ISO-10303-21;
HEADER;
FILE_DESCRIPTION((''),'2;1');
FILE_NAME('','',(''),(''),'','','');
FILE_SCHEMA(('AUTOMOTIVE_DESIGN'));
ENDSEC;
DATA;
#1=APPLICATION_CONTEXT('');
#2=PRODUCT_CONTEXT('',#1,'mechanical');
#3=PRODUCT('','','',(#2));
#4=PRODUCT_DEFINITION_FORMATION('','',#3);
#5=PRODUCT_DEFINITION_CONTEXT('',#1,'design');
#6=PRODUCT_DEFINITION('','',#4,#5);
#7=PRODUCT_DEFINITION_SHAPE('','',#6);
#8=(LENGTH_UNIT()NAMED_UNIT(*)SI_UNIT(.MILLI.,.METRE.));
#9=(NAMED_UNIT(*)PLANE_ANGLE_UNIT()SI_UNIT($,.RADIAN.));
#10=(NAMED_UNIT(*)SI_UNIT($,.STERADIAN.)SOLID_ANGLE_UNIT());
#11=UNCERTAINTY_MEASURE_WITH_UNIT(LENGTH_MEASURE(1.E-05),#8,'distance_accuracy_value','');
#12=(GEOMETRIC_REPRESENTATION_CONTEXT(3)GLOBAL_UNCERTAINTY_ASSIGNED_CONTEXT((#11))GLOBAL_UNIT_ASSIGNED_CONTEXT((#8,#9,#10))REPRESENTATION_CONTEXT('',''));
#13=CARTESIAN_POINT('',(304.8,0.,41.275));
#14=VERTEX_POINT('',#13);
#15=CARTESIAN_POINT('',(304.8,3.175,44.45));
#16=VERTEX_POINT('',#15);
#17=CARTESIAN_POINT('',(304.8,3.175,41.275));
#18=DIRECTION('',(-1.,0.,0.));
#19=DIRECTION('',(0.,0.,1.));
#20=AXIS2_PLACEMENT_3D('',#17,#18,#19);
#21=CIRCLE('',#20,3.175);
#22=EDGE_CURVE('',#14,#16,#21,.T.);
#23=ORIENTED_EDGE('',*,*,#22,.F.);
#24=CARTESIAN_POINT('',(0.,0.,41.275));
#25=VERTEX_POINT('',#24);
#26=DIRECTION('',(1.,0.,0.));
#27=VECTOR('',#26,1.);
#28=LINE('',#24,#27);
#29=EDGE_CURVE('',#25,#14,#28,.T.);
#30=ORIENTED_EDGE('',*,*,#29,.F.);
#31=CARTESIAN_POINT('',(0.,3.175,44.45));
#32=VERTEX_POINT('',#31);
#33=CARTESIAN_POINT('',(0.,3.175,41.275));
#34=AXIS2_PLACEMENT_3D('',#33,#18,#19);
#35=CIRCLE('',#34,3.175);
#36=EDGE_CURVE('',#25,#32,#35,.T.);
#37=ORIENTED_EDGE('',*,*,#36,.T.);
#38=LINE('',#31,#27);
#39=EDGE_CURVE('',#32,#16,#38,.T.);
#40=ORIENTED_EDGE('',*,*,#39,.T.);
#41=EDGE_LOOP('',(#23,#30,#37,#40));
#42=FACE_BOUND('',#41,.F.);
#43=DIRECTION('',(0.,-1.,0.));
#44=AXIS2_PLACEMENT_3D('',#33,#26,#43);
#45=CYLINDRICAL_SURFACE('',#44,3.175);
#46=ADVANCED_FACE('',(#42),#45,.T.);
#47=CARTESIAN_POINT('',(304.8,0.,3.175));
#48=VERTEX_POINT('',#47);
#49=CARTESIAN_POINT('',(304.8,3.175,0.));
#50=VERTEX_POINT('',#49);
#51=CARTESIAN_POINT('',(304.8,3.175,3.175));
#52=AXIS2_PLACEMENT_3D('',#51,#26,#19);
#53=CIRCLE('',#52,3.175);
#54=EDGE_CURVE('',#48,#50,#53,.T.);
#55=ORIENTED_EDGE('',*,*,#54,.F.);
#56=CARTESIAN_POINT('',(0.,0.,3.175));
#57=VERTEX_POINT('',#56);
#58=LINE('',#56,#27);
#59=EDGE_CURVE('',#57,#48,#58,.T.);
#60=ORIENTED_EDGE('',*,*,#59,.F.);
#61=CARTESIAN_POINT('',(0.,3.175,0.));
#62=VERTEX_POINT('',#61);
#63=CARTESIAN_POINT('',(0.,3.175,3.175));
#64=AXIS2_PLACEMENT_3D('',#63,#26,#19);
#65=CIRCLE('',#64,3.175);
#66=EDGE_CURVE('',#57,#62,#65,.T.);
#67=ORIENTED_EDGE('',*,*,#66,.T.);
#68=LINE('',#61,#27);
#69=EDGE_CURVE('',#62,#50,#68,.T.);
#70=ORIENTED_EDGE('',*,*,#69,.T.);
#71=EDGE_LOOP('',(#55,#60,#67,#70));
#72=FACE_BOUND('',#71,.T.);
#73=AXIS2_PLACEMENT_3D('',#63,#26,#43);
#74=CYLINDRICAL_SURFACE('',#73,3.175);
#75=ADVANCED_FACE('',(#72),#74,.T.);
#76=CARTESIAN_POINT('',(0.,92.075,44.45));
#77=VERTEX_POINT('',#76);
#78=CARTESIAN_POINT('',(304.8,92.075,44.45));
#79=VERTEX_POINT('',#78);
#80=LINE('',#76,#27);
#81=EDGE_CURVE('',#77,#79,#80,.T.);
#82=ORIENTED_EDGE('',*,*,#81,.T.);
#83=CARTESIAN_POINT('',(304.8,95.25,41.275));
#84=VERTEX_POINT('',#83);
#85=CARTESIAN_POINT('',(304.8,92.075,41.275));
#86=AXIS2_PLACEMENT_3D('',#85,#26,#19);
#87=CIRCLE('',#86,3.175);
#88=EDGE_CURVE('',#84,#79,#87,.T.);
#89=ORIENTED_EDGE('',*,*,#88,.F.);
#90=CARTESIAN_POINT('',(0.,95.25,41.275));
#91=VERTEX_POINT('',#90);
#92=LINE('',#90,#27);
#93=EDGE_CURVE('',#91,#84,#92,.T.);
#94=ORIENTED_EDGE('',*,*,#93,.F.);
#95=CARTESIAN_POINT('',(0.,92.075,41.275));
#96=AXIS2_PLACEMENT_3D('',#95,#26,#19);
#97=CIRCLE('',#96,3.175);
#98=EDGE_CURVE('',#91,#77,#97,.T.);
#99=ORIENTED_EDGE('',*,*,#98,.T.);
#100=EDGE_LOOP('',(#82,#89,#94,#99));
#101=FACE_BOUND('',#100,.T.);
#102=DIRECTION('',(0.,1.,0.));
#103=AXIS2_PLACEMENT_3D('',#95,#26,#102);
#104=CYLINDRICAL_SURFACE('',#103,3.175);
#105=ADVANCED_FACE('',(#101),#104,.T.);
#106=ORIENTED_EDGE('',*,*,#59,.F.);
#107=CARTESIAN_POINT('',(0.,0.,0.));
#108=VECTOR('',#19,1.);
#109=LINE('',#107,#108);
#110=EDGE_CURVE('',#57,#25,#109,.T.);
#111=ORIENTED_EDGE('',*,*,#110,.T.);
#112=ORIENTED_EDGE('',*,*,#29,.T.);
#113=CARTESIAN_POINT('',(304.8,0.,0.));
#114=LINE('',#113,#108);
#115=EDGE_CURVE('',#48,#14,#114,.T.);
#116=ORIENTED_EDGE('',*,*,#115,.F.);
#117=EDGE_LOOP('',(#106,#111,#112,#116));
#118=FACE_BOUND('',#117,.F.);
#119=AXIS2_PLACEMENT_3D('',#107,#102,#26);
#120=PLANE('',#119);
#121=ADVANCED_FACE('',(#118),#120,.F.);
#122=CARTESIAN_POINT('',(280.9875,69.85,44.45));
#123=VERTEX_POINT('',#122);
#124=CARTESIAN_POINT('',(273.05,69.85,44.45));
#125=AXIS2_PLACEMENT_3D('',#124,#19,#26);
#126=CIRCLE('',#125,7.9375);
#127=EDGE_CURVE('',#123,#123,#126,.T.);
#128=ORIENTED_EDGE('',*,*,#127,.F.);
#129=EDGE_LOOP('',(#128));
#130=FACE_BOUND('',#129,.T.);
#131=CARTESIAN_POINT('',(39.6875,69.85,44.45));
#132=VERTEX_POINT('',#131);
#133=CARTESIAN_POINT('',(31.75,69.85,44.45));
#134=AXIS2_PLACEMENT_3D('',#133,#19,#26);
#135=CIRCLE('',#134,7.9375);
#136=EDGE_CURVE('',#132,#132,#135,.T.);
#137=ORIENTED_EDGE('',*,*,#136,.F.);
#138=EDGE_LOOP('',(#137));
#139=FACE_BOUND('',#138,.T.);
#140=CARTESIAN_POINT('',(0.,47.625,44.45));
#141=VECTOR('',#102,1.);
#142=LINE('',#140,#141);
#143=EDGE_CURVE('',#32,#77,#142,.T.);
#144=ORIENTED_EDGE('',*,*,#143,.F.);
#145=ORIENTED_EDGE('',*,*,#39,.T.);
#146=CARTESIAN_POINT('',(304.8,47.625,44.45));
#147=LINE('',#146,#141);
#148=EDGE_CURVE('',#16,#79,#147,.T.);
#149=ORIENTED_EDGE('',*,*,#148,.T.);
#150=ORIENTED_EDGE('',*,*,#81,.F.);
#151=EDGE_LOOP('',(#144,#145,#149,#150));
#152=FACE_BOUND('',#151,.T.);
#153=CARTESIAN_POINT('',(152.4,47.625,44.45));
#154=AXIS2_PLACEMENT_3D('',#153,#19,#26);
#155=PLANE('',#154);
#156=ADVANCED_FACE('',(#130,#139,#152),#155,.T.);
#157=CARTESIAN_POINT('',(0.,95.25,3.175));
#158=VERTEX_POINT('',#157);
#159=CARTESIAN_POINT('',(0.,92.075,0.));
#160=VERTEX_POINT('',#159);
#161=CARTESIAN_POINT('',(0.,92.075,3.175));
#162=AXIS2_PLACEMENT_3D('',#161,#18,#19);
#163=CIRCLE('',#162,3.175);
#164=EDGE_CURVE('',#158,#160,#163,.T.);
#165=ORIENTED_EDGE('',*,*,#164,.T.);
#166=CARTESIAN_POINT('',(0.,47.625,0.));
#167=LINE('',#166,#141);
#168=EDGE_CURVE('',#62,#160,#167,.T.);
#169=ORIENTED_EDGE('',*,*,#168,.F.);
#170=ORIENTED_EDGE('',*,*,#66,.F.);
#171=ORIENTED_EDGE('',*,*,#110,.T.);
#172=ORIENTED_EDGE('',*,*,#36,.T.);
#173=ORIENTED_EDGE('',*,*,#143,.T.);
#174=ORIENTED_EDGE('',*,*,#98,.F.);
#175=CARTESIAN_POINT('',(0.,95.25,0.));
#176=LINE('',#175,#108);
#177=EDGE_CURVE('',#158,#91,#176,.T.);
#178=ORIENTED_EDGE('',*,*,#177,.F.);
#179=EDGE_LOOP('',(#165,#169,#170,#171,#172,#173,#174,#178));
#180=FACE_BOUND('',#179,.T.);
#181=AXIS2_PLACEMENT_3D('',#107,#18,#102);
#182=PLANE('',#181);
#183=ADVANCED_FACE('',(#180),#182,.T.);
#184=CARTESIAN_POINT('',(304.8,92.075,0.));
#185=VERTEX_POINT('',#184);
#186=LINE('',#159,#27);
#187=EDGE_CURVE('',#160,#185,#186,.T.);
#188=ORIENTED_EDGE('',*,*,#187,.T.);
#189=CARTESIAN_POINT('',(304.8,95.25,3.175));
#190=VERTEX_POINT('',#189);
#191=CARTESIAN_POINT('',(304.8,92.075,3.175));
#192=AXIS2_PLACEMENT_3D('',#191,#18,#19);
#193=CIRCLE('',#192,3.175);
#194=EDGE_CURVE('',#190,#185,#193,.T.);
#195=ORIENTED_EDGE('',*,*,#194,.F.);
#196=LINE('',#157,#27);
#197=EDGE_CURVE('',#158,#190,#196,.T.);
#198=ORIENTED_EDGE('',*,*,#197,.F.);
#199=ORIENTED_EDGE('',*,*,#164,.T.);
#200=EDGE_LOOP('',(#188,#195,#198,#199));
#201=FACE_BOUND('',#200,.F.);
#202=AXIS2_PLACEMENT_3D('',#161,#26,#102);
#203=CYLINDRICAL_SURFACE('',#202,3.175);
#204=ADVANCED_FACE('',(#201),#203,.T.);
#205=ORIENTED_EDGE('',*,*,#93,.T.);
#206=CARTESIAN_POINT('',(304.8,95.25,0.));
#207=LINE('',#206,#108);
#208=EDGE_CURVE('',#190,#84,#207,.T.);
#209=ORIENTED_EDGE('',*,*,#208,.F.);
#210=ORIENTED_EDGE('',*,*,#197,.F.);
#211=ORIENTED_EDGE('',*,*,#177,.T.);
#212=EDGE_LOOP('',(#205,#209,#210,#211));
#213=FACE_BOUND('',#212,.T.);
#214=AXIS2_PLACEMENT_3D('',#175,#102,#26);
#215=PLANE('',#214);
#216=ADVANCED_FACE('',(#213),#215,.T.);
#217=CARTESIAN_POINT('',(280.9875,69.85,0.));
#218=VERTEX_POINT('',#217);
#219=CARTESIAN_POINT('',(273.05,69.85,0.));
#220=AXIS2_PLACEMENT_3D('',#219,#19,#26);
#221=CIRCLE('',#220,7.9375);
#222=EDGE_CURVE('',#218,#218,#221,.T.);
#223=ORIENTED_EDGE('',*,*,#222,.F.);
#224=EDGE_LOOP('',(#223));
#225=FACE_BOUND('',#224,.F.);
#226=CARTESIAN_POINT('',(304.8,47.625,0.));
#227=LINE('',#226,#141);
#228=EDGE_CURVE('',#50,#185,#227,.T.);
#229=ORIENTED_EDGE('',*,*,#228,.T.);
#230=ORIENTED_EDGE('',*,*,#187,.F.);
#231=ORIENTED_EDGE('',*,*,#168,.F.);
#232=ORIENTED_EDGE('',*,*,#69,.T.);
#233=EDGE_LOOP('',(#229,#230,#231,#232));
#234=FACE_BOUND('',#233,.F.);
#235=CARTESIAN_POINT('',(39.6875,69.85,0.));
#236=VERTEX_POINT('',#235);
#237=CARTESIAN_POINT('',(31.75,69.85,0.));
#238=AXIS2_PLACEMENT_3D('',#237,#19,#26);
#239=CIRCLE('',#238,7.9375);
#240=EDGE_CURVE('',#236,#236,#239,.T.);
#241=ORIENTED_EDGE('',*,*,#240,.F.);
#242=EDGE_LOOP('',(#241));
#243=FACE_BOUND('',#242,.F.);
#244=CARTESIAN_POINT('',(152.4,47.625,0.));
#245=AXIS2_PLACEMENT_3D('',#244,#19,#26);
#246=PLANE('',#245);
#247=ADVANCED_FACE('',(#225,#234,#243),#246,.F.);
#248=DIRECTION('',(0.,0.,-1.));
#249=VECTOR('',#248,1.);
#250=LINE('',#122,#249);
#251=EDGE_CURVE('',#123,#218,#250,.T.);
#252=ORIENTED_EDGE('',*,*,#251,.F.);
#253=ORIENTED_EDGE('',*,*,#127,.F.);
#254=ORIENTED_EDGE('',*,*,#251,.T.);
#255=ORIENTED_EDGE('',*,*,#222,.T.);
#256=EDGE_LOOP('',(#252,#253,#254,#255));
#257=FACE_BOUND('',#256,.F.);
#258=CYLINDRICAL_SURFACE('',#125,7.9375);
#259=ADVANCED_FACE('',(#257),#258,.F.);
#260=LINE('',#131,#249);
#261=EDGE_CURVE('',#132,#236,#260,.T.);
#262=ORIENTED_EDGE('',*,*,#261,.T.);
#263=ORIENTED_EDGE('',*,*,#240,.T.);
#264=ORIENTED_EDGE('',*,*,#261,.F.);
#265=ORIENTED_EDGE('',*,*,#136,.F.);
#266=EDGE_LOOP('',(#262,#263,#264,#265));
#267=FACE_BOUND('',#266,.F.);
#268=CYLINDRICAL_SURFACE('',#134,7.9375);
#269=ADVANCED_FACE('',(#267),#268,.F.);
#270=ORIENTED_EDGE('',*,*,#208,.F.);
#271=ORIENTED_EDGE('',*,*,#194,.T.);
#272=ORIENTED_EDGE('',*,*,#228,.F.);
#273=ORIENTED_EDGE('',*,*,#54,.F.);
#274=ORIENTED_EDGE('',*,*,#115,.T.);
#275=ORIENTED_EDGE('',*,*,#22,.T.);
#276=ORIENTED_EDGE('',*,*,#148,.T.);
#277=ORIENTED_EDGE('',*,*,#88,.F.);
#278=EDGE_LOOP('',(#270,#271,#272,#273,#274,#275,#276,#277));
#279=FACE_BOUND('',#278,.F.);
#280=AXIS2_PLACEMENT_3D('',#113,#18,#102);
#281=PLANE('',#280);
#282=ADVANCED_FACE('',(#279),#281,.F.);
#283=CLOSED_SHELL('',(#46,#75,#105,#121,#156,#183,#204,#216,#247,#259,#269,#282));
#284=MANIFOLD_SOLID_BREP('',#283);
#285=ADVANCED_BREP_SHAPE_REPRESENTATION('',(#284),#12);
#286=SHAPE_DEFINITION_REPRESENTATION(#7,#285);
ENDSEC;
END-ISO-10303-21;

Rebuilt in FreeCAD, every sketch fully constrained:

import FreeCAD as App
import Part
import Sketcher
Q = App.Units.Quantity


def edges_at(feature, points):
    """Names of the edges that pass closest to the given points."""
    edges = feature.Shape.Edges
    near = lambda p: min(range(len(edges)), key=lambda i: edges[i].distToShape(Part.Vertex(*p))[0])
    return sorted({f"Edge{near(p) + 1}" for p in points})

doc = App.newDocument("Part")
body = doc.addObject("PartDesign::Body", "Body")

# Sketch on XY plane
sketch1 = body.newObject("Sketcher::SketchObject", "Sketch")
sketch1.AttachmentSupport = (doc.getObject("XY_Plane"), [""])
sketch1.MapMode = "FlatFace"
sketch1.addGeometry(Part.LineSegment(App.Vector(0, 95, 0), App.Vector(0, 0, 0)), False)
sketch1.addGeometry(Part.LineSegment(App.Vector(0, 0, 0), App.Vector(305, 0, 0)), False)
sketch1.addGeometry(Part.LineSegment(App.Vector(305, 0, 0), App.Vector(305, 95, 0)), False)
sketch1.addGeometry(Part.LineSegment(App.Vector(305, 95, 0), App.Vector(0, 95, 0)), False)
sketch1.addConstraint(Sketcher.Constraint("Coincident", 0, 2, 1, 1))
sketch1.addConstraint(Sketcher.Constraint("Coincident", 1, 2, 2, 1))
sketch1.addConstraint(Sketcher.Constraint("Coincident", 2, 2, 3, 1))
sketch1.addConstraint(Sketcher.Constraint("Coincident", 3, 2, 0, 1))
sketch1.addConstraint(Sketcher.Constraint("Vertical", 0))
sketch1.addConstraint(Sketcher.Constraint("Horizontal", 1))
sketch1.addConstraint(Sketcher.Constraint("Vertical", 2))
sketch1.addConstraint(Sketcher.Constraint("Horizontal", 3))
sketch1.addConstraint(Sketcher.Constraint("Coincident", 0, 2, -1, 1))
sketch1.addConstraint(Sketcher.Constraint("DistanceX", 1, 1, 1, 2, Q("12 in")))
sketch1.addConstraint(Sketcher.Constraint("DistanceY", 0, 2, 0, 1, Q("3.75 in")))
pad1 = body.newObject("PartDesign::Pad", "Pad")
pad1.Profile = sketch1
pad1.Length = Q("1.75 in")
doc.recompute()

fillet = body.newObject("PartDesign::Fillet", "Fillet")
fillet.Base = (pad1, edges_at(pad1, [
    (152.4, 95.25, 44.45),
    (152.4, 0, 44.45),
    (152.4, 0, 0),
    (152.4, 95.25, 0),
]))
fillet.Radius = Q("0.125 in")

# Sketch on XY plane
sketch2 = body.newObject("Sketcher::SketchObject", "Sketch001")
sketch2.AttachmentSupport = (doc.getObject("XY_Plane"), [""])
sketch2.MapMode = "FlatFace"
sketch2.AttachmentOffset = App.Placement(App.Vector(0, 0, 1.75 * 25.4), App.Rotation())
sketch2.addGeometry(Part.Circle(App.Vector(32, 70, 0), App.Vector(0, 0, 1), 8), False)
sketch2.addGeometry(Part.Circle(App.Vector(273, 70, 0), App.Vector(0, 0, 1), 8), False)
sketch2.addConstraint(Sketcher.Constraint("Equal", 0, 1))
sketch2.addConstraint(Sketcher.Constraint("Horizontal", 0, 3, 1, 3))
sketch2.addConstraint(Sketcher.Constraint("Diameter", 0, Q("0.625 in")))
sketch2.addConstraint(Sketcher.Constraint("DistanceX", 0, 3, 1, 3, Q("9.5 in")))
sketch2.addConstraint(Sketcher.Constraint("DistanceX", -1, 1, 0, 3, Q("1.25 in")))
sketch2.addConstraint(Sketcher.Constraint("DistanceY", -1, 1, 0, 3, Q("2.75 in")))
pocket1 = body.newObject("PartDesign::Pocket", "Pocket")
pocket1.Profile = sketch2
pocket1.Type = "ThroughAll"

doc.recompute()
